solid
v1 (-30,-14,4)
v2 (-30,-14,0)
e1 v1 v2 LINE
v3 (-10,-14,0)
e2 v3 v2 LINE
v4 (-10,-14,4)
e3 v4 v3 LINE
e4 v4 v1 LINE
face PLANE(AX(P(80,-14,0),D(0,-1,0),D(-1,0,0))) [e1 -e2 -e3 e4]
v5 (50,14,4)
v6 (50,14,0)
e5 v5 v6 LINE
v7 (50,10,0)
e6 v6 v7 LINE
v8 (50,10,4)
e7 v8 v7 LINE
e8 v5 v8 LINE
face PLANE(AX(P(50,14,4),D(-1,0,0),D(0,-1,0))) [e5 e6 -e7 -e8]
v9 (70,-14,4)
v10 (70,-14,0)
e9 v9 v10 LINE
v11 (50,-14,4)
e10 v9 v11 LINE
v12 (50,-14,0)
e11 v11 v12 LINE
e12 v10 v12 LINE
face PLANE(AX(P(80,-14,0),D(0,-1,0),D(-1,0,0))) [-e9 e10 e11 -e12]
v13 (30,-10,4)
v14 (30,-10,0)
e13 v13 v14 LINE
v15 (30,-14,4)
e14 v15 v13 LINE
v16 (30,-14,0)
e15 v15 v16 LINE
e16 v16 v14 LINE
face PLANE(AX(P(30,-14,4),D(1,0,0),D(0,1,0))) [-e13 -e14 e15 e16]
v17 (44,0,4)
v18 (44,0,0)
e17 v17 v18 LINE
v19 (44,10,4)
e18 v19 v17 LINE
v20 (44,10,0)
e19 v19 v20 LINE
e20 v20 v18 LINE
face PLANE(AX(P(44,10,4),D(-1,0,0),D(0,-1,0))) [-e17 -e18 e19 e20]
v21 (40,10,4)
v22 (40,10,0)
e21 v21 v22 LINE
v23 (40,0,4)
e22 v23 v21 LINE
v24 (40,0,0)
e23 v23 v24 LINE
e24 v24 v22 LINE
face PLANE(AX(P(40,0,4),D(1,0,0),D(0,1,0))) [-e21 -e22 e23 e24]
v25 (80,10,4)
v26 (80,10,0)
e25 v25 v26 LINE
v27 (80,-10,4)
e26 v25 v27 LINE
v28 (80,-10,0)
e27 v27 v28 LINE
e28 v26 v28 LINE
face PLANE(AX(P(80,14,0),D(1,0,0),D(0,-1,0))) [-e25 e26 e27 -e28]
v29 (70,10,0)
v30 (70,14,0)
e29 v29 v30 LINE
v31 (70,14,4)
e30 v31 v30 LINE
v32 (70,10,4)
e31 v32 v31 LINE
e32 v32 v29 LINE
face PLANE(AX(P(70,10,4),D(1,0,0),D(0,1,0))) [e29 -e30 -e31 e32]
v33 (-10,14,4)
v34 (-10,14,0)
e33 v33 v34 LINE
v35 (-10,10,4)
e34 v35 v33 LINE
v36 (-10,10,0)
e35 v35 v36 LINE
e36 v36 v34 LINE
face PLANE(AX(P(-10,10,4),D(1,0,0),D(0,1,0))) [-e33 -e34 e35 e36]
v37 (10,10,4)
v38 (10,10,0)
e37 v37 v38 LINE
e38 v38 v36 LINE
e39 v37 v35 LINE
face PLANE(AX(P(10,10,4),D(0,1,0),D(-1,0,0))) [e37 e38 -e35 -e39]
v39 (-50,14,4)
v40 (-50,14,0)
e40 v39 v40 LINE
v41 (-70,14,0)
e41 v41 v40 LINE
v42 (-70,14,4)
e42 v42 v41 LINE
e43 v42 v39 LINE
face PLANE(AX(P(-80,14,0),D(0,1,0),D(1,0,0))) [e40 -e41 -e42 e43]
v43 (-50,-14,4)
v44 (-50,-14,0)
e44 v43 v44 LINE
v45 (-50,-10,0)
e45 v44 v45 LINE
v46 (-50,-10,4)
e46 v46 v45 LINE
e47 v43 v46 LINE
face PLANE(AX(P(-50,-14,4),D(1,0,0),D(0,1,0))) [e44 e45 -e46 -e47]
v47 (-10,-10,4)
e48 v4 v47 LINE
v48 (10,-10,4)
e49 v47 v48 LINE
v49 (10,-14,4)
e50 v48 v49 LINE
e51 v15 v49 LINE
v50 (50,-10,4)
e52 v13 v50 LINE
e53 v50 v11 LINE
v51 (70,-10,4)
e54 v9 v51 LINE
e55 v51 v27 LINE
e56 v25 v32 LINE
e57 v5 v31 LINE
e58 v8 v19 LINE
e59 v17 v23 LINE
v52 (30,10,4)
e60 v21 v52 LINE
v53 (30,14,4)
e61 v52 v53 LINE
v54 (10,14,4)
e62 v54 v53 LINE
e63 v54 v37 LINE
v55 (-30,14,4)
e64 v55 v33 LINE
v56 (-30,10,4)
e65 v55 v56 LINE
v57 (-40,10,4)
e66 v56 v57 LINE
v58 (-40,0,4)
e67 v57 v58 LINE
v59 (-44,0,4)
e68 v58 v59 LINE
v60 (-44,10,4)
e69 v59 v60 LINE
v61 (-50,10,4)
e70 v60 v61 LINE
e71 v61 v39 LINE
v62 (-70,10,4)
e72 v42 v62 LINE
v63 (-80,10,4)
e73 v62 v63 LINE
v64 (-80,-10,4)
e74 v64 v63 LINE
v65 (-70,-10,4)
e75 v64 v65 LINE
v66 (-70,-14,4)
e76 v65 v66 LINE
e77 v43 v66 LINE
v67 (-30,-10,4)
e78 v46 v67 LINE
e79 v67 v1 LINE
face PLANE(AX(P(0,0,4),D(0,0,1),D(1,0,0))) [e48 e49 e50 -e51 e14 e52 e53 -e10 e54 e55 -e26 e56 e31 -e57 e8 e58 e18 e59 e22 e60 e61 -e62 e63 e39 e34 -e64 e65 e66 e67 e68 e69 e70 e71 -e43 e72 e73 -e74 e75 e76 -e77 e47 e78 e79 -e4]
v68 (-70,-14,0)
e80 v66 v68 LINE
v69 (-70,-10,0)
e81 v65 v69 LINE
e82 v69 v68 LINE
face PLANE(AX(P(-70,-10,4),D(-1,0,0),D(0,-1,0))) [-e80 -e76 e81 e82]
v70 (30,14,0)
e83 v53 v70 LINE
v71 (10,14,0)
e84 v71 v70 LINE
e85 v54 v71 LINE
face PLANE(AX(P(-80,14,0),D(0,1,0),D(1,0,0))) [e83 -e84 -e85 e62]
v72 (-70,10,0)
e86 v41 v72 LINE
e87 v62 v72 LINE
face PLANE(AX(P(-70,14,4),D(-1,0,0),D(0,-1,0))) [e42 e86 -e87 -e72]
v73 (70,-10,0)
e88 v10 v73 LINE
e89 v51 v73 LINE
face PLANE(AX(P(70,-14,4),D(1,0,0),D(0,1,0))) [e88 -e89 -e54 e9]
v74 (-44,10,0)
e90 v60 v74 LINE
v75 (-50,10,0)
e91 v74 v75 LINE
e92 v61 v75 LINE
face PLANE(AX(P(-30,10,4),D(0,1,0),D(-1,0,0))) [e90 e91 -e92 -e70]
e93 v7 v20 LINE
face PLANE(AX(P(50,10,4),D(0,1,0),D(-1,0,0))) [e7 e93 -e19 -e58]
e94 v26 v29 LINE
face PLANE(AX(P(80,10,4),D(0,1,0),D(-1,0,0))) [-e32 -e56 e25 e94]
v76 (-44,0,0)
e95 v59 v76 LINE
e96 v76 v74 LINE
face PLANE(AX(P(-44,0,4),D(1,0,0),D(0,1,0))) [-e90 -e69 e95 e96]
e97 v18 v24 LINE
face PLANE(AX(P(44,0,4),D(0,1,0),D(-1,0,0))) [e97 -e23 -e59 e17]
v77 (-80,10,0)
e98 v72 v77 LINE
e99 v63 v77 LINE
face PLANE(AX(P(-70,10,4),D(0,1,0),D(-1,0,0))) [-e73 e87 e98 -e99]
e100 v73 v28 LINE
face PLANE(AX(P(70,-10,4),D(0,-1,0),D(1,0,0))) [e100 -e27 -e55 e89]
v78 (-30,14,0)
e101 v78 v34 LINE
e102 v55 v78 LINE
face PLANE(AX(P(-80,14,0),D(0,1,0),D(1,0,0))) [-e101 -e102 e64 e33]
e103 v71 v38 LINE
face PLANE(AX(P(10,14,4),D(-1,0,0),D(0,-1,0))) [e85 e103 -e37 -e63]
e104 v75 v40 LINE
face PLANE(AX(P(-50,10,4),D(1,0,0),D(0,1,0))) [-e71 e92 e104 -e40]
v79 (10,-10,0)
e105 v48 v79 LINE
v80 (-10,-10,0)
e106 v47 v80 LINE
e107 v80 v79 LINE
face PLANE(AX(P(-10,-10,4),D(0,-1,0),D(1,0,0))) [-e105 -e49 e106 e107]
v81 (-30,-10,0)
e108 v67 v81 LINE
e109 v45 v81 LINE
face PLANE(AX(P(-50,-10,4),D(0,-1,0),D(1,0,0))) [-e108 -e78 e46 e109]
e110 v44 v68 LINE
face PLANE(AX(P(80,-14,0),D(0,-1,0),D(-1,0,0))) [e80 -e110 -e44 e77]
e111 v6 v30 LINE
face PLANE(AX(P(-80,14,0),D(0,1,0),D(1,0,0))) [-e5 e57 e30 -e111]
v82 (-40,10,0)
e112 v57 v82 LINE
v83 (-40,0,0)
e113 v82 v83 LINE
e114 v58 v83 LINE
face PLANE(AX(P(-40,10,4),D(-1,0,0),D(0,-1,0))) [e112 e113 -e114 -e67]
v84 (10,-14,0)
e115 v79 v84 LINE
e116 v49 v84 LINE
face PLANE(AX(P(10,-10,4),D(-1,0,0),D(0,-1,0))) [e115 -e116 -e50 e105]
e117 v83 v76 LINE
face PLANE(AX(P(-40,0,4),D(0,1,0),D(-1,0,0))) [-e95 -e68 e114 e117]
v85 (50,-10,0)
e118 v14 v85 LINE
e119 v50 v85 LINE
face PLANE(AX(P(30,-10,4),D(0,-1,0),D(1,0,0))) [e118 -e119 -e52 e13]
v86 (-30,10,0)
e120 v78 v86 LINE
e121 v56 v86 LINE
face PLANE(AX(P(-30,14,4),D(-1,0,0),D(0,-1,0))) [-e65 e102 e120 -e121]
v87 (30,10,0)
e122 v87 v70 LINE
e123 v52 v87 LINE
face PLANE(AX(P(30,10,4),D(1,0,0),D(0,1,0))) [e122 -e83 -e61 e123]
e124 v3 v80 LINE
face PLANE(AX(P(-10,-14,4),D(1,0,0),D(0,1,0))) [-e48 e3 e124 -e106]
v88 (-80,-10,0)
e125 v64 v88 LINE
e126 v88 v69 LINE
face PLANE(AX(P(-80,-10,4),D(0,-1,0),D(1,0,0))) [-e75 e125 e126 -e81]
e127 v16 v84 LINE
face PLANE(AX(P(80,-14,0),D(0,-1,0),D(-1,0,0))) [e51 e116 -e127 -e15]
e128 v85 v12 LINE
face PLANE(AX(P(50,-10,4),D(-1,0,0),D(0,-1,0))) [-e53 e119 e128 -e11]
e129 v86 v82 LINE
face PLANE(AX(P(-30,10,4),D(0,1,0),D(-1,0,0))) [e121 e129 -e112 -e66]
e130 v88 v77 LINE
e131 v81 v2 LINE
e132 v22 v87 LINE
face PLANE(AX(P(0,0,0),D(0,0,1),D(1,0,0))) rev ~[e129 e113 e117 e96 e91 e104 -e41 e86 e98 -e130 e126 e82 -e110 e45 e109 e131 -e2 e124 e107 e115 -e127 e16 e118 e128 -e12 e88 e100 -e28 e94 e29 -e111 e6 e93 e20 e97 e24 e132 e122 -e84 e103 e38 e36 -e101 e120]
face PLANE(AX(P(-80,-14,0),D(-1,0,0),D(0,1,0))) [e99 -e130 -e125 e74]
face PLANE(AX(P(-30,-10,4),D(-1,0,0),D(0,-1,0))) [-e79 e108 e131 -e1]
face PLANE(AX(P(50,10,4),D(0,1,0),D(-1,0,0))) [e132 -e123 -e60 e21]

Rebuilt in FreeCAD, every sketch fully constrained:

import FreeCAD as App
import Part
import Sketcher
from FreeCAD import Vector

doc = App.newDocument("Part")
params = doc.addObject("Spreadsheet::Sheet", "Params")
for row, (alias, value) in enumerate([
    ("sketch1_width", "160 mm"),
    ("sketch1_height", "28 mm"),
    ("pad1_length", "4 mm"),
    ("sketch2_width", "10 mm"),
    ("sketch2_width2", "20 mm"),
    ("sketch2_height", "4 mm"),
    ("pocket1_length", "4 mm"),
    ("sketch3_width", "4 mm"),
    ("sketch3_height", "10 mm"),
    ("pocket2_length", "4 mm"),
], start=1):
    params.set(f"A{row}", alias)
    params.set(f"B{row}", "=" + value)
    params.setAlias(f"B{row}", alias)

body = doc.addObject("PartDesign::Body", "Body")

# Sketch on XY plane
sketch1 = body.newObject("Sketcher::SketchObject", "Sketch")
sketch1.AttachmentSupport = (doc.getObject("XY_Plane"), [""])
sketch1.MapMode = "FlatFace"
sketch1.addGeometry([
    Part.LineSegment(Vector(80, 14, 0), Vector(-80, 14, 0)),
    Part.LineSegment(Vector(-80, 14, 0), Vector(-80, -14, 0)),
    Part.LineSegment(Vector(-80, -14, 0), Vector(80, -14, 0)),
    Part.LineSegment(Vector(80, -14, 0), Vector(80, 14, 0)),
], False)
sketch1.addConstraint([
    Sketcher.Constraint("Coincident", 0, 2, 1, 1),
    Sketcher.Constraint("Coincident", 1, 2, 2, 1),
    Sketcher.Constraint("Coincident", 2, 2, 3, 1),
    Sketcher.Constraint("Coincident", 3, 2, 0, 1),
    Sketcher.Constraint("Horizontal", 0),
    Sketcher.Constraint("Vertical", 1),
    Sketcher.Constraint("Horizontal", 2),
    Sketcher.Constraint("Vertical", 3),
    Sketcher.Constraint("Symmetric", 0, 2, 2, 2, -1, 1),
    Sketcher.Constraint("DistanceX", 0, 2, 0, 1, 160.0),
    Sketcher.Constraint("DistanceY", 1, 2, 1, 1, 28.0),
])
sketch1.setExpression("Constraints[9]", "Params.sketch1_width")
sketch1.setExpression("Constraints[10]", "Params.sketch1_height")
pad1 = body.newObject("PartDesign::Pad", "Pad")
pad1.Profile = sketch1
pad1.setExpression("Length", "Params.pad1_length")

# Sketch on XY plane
sketch2 = body.newObject("Sketcher::SketchObject", "Sketch001")
sketch2.AttachmentSupport = (doc.getObject("XY_Plane"), [""])
sketch2.MapMode = "FlatFace"
sketch2.AttachmentOffset = App.Placement(Vector(0, 0, 4), App.Rotation())
sketch2.addGeometry([
    Part.LineSegment(Vector(-70, 14, 0), Vector(-80, 14, 0)),  # 0
    Part.LineSegment(Vector(-80, 14, 0), Vector(-80, 10, 0)),  # 1
    Part.LineSegment(Vector(-80, 10, 0), Vector(-70, 10, 0)),  # 2
    Part.LineSegment(Vector(-70, 10, 0), Vector(-70, 14, 0)),  # 3
    Part.LineSegment(Vector(-30, 14, 0), Vector(-50, 14, 0)),  # 4
    Part.LineSegment(Vector(-50, 14, 0), Vector(-50, 10, 0)),  # 5
    Part.LineSegment(Vector(-50, 10, 0), Vector(-30, 10, 0)),  # 6
    Part.LineSegment(Vector(-30, 10, 0), Vector(-30, 14, 0)),  # 7
    Part.LineSegment(Vector(-70, -10, 0), Vector(-80, -10, 0)),  # 8
    Part.LineSegment(Vector(-80, -10, 0), Vector(-80, -14, 0)),  # 9
    Part.LineSegment(Vector(-80, -14, 0), Vector(-70, -14, 0)),  # 10
    Part.LineSegment(Vector(-70, -14, 0), Vector(-70, -10, 0)),  # 11
    Part.LineSegment(Vector(10, 14, 0), Vector(-10, 14, 0)),  # 12
    Part.LineSegment(Vector(-10, 14, 0), Vector(-10, 10, 0)),  # 13
    Part.LineSegment(Vector(-10, 10, 0), Vector(10, 10, 0)),  # 14
    Part.LineSegment(Vector(10, 10, 0), Vector(10, 14, 0)),  # 15
    Part.LineSegment(Vector(-50, -10, 0), Vector(-50, -14, 0)),  # 16
    Part.LineSegment(Vector(-50, -14, 0), Vector(-30, -14, 0)),  # 17
    Part.LineSegment(Vector(-30, -14, 0), Vector(-30, -10, 0)),  # 18
    Part.LineSegment(Vector(-30, -10, 0), Vector(-50, -10, 0)),  # 19
    Part.LineSegment(Vector(50, 14, 0), Vector(30, 14, 0)),  # 20
    Part.LineSegment(Vector(30, 14, 0), Vector(30, 10, 0)),  # 21
    Part.LineSegment(Vector(30, 10, 0), Vector(50, 10, 0)),  # 22
    Part.LineSegment(Vector(50, 10, 0), Vector(50, 14, 0)),  # 23
    Part.LineSegment(Vector(-10, -10, 0), Vector(-10, -14, 0)),  # 24
    Part.LineSegment(Vector(-10, -14, 0), Vector(10, -14, 0)),  # 25
    Part.LineSegment(Vector(10, -14, 0), Vector(10, -10, 0)),  # 26
    Part.LineSegment(Vector(10, -10, 0), Vector(-10, -10, 0)),  # 27
    Part.LineSegment(Vector(80, 14, 0), Vector(70, 14, 0)),  # 28
    Part.LineSegment(Vector(70, 14, 0), Vector(70, 10, 0)),  # 29
    Part.LineSegment(Vector(70, 10, 0), Vector(80, 10, 0)),  # 30
    Part.LineSegment(Vector(80, 10, 0), Vector(80, 14, 0)),  # 31
    Part.LineSegment(Vector(30, -10, 0), Vector(30, -14, 0)),  # 32
    Part.LineSegment(Vector(30, -14, 0), Vector(50, -14, 0)),  # 33
    Part.LineSegment(Vector(50, -14, 0), Vector(50, -10, 0)),  # 34
    Part.LineSegment(Vector(50, -10, 0), Vector(30, -10, 0)),  # 35
    Part.LineSegment(Vector(80, -14, 0), Vector(80, -10, 0)),  # 36
    Part.LineSegment(Vector(80, -10, 0), Vector(70, -10, 0)),  # 37
    Part.LineSegment(Vector(70, -10, 0), Vector(70, -14, 0)),  # 38
    Part.LineSegment(Vector(70, -14, 0), Vector(80, -14, 0)),  # 39
], False)
sketch2.addConstraint([
    Sketcher.Constraint("Coincident", 0, 2, 1, 1),
    Sketcher.Constraint("Coincident", 1, 2, 2, 1),
    Sketcher.Constraint("Coincident", 2, 2, 3, 1),
    Sketcher.Constraint("Coincident", 3, 2, 0, 1),
    Sketcher.Constraint("Coincident", 4, 2, 5, 1),
    Sketcher.Constraint("Coincident", 5, 2, 6, 1),
    Sketcher.Constraint("Coincident", 6, 2, 7, 1),
    Sketcher.Constraint("Coincident", 7, 2, 4, 1),
    Sketcher.Constraint("Coincident", 8, 2, 9, 1),
    Sketcher.Constraint("Coincident", 9, 2, 10, 1),
    Sketcher.Constraint("Coincident", 10, 2, 11, 1),
    Sketcher.Constraint("Coincident", 11, 2, 8, 1),
    Sketcher.Constraint("Coincident", 12, 2, 13, 1),
    Sketcher.Constraint("Coincident", 13, 2, 14, 1),
    Sketcher.Constraint("Coincident", 14, 2, 15, 1),
    Sketcher.Constraint("Coincident", 15, 2, 12, 1),
    Sketcher.Constraint("Coincident", 16, 2, 17, 1),
    Sketcher.Constraint("Coincident", 17, 2, 18, 1),
    Sketcher.Constraint("Coincident", 18, 2, 19, 1),
    Sketcher.Constraint("Coincident", 19, 2, 16, 1),
    Sketcher.Constraint("Coincident", 20, 2, 21, 1),
    Sketcher.Constraint("Coincident", 21, 2, 22, 1),
    Sketcher.Constraint("Coincident", 22, 2, 23, 1),
    Sketcher.Constraint("Coincident", 23, 2, 20, 1),
    Sketcher.Constraint("Coincident", 24, 2, 25, 1),
    Sketcher.Constraint("Coincident", 25, 2, 26, 1),
    Sketcher.Constraint("Coincident", 26, 2, 27, 1),
    Sketcher.Constraint("Coincident", 27, 2, 24, 1),
    Sketcher.Constraint("Coincident", 28, 2, 29, 1),
    Sketcher.Constraint("Coincident", 29, 2, 30, 1),
    Sketcher.Constraint("Coincident", 30, 2, 31, 1),
    Sketcher.Constraint("Coincident", 31, 2, 28, 1),
    Sketcher.Constraint("Coincident", 32, 2, 33, 1),
    Sketcher.Constraint("Coincident", 33, 2, 34, 1),
    Sketcher.Constraint("Coincident", 34, 2, 35, 1),
    Sketcher.Constraint("Coincident", 35, 2, 32, 1),
    Sketcher.Constraint("Coincident", 36, 2, 37, 1),
    Sketcher.Constraint("Coincident", 37, 2, 38, 1),
    Sketcher.Constraint("Coincident", 38, 2, 39, 1),
    Sketcher.Constraint("Coincident", 39, 2, 36, 1),
    Sketcher.Constraint("Horizontal", 0),
    Sketcher.Constraint("Vertical", 1),
    Sketcher.Constraint("Horizontal", 2),
    Sketcher.Constraint("Vertical", 3),
    Sketcher.Constraint("Horizontal", 4),
    Sketcher.Constraint("Vertical", 5),
    Sketcher.Constraint("Horizontal", 6),
    Sketcher.Constraint("Vertical", 7),
    Sketcher.Constraint("Horizontal", 8),
    Sketcher.Constraint("Vertical", 9),
    Sketcher.Constraint("Horizontal", 10),
    Sketcher.Constraint("Vertical", 11),
    Sketcher.Constraint("Horizontal", 12),
    Sketcher.Constraint("Vertical", 13),
    Sketcher.Constraint("Horizontal", 14),
    Sketcher.Constraint("Vertical", 15),
    Sketcher.Constraint("Vertical", 16),
    Sketcher.Constraint("Horizontal", 17),
    Sketcher.Constraint("Vertical", 18),
    Sketcher.Constraint("Horizontal", 19),
    Sketcher.Constraint("Horizontal", 20),
    Sketcher.Constraint("Vertical", 21),
    Sketcher.Constraint("Horizontal", 22),
    Sketcher.Constraint("Vertical", 23),
    Sketcher.Constraint("Vertical", 24),
    Sketcher.Constraint("Horizontal", 25),
    Sketcher.Constraint("Vertical", 26),
    Sketcher.Constraint("Horizontal", 27),
    Sketcher.Constraint("Horizontal", 28),
    Sketcher.Constraint("Vertical", 29),
    Sketcher.Constraint("Horizontal", 30),
    Sketcher.Constraint("Vertical", 31),
    Sketcher.Constraint("Vertical", 32),
    Sketcher.Constraint("Horizontal", 33),
    Sketcher.Constraint("Vertical", 34),
    Sketcher.Constraint("Horizontal", 35),
    Sketcher.Constraint("Vertical", 36),
    Sketcher.Constraint("Horizontal", 37),
    Sketcher.Constraint("Vertical", 38),
    Sketcher.Constraint("Horizontal", 39),
    Sketcher.Constraint("Symmetric", 17, 2, 20, 2, -1, 1),
    Sketcher.Constraint("Symmetric", 19, 2, 22, 2, -1, 1),
    Sketcher.Constraint("Symmetric", 15, 2, 24, 2, -1, 1),
    Sketcher.Constraint("Symmetric", 13, 2, 26, 2, -1, 1),
    Sketcher.Constraint("Symmetric", 10, 2, 28, 2, -1, 1),
    Sketcher.Constraint("Symmetric", 8, 2, 30, 2, -1, 1),
    Sketcher.Constraint("Symmetric", 7, 2, 32, 2, -1, 1),
    Sketcher.Constraint("Symmetric", 5, 2, 34, 2, -1, 1),
    Sketcher.Constraint("Symmetric", 1, 2, 36, 2, -1, 1),
    Sketcher.Constraint("Symmetric", 3, 2, 38, 2, -1, 1),
    Sketcher.Constraint("Symmetric", 7, 2, 20, 2, -2),
    Sketcher.Constraint("Symmetric", 5, 2, 22, 2, -2),
    Sketcher.Constraint("Symmetric", 3, 2, 28, 2, -2),
    Sketcher.Constraint("Symmetric", 1, 2, 30, 2, -2),
    Sketcher.Constraint("Horizontal", 3, 2, 4, 2),
    Sketcher.Constraint("Horizontal", 2, 2, 5, 2),
    Sketcher.Constraint("Horizontal", 7, 2, 12, 2),
    Sketcher.Constraint("Horizontal", 6, 2, 13, 2),
    Sketcher.Constraint("Vertical", 13, 2, 24, 2),
    Sketcher.Constraint("Equal", 6, 12),
    Sketcher.Constraint("DistanceX", 0, 2, 0, 1, 10.0),
    Sketcher.Constraint("DistanceX", 4, 2, 4, 1, 20.0),
    Sketcher.Constraint("DistanceY", 1, 2, 1, 1, 4.0),
    Sketcher.Constraint("DistanceY", -1, 1, 1, 2, 10.0),
    Sketcher.Constraint("DistanceX", 3, 2, 4, 2, 20.0),
    Sketcher.Constraint("DistanceX", 7, 2, 12, 2, 20.0),
])
sketch2.setExpression("Constraints[100]", "Params.sketch2_width")
sketch2.setExpression("Constraints[101]", "Params.sketch2_width2")
sketch2.setExpression("Constraints[102]", "Params.sketch2_height")
pocket1 = body.newObject("PartDesign::Pocket", "Pocket")
pocket1.Profile = sketch2
pocket1.setExpression("Length", "Params.pocket1_length")

# Sketch on XY plane
sketch3 = body.newObject("Sketcher::SketchObject", "Sketch002")
sketch3.AttachmentSupport = (doc.getObject("XY_Plane"), [""])
sketch3.MapMode = "FlatFace"
sketch3.AttachmentOffset = App.Placement(Vector(0, 0, 4), App.Rotation())
sketch3.addGeometry([
    Part.LineSegment(Vector(-40, 0, 0), Vector(-40, 10, 0)),  # 0
    Part.LineSegment(Vector(-40, 10, 0), Vector(-44, 10, 0)),  # 1
    Part.LineSegment(Vector(-44, 10, 0), Vector(-44, 0, 0)),  # 2
    Part.LineSegment(Vector(-44, 0, 0), Vector(-40, 0, 0)),  # 3
    Part.LineSegment(Vector(44, 0, 0), Vector(44, 10, 0)),  # 4
    Part.LineSegment(Vector(44, 10, 0), Vector(40, 10, 0)),  # 5
    Part.LineSegment(Vector(40, 10, 0), Vector(40, 0, 0)),  # 6
    Part.LineSegment(Vector(40, 0, 0), Vector(44, 0, 0)),  # 7
], False)
sketch3.addConstraint([
    Sketcher.Constraint("Coincident", 0, 2, 1, 1),
    Sketcher.Constraint("Coincident", 1, 2, 2, 1),
    Sketcher.Constraint("Coincident", 2, 2, 3, 1),
    Sketcher.Constraint("Coincident", 3, 2, 0, 1),
    Sketcher.Constraint("Coincident", 4, 2, 5, 1),
    Sketcher.Constraint("Coincident", 5, 2, 6, 1),
    Sketcher.Constraint("Coincident", 6, 2, 7, 1),
    Sketcher.Constraint("Coincident", 7, 2, 4, 1),
    Sketcher.Constraint("Vertical", 0),
    Sketcher.Constraint("Horizontal", 1),
    Sketcher.Constraint("Vertical", 2),
    Sketcher.Constraint("Horizontal", 3),
    Sketcher.Constraint("Vertical", 4),
    Sketcher.Constraint("Horizontal", 5),
    Sketcher.Constraint("Vertical", 6),
    Sketcher.Constraint("Horizontal", 7),
    Sketcher.Constraint("Symmetric", 3, 2, 6, 2, -1, 1),
    Sketcher.Constraint("Symmetric", 1, 2, 4, 2, -2),
    Sketcher.Constraint("PointOnObject", 2, 2, -1),
    Sketcher.Constraint("DistanceX", 1, 2, 1, 1, 4.0),
    Sketcher.Constraint("DistanceY", 0, 1, 0, 2, 10.0),
    Sketcher.Constraint("DistanceX", 0, 2, -1, 1, 40.0),
])
sketch3.setExpression("Constraints[19]", "Params.sketch3_width")
sketch3.setExpression("Constraints[20]", "Params.sketch3_height")
pocket2 = body.newObject("PartDesign::Pocket", "Pocket001")
pocket2.Profile = sketch3
pocket2.setExpression("Length", "Params.pocket2_length")

doc.recompute()
